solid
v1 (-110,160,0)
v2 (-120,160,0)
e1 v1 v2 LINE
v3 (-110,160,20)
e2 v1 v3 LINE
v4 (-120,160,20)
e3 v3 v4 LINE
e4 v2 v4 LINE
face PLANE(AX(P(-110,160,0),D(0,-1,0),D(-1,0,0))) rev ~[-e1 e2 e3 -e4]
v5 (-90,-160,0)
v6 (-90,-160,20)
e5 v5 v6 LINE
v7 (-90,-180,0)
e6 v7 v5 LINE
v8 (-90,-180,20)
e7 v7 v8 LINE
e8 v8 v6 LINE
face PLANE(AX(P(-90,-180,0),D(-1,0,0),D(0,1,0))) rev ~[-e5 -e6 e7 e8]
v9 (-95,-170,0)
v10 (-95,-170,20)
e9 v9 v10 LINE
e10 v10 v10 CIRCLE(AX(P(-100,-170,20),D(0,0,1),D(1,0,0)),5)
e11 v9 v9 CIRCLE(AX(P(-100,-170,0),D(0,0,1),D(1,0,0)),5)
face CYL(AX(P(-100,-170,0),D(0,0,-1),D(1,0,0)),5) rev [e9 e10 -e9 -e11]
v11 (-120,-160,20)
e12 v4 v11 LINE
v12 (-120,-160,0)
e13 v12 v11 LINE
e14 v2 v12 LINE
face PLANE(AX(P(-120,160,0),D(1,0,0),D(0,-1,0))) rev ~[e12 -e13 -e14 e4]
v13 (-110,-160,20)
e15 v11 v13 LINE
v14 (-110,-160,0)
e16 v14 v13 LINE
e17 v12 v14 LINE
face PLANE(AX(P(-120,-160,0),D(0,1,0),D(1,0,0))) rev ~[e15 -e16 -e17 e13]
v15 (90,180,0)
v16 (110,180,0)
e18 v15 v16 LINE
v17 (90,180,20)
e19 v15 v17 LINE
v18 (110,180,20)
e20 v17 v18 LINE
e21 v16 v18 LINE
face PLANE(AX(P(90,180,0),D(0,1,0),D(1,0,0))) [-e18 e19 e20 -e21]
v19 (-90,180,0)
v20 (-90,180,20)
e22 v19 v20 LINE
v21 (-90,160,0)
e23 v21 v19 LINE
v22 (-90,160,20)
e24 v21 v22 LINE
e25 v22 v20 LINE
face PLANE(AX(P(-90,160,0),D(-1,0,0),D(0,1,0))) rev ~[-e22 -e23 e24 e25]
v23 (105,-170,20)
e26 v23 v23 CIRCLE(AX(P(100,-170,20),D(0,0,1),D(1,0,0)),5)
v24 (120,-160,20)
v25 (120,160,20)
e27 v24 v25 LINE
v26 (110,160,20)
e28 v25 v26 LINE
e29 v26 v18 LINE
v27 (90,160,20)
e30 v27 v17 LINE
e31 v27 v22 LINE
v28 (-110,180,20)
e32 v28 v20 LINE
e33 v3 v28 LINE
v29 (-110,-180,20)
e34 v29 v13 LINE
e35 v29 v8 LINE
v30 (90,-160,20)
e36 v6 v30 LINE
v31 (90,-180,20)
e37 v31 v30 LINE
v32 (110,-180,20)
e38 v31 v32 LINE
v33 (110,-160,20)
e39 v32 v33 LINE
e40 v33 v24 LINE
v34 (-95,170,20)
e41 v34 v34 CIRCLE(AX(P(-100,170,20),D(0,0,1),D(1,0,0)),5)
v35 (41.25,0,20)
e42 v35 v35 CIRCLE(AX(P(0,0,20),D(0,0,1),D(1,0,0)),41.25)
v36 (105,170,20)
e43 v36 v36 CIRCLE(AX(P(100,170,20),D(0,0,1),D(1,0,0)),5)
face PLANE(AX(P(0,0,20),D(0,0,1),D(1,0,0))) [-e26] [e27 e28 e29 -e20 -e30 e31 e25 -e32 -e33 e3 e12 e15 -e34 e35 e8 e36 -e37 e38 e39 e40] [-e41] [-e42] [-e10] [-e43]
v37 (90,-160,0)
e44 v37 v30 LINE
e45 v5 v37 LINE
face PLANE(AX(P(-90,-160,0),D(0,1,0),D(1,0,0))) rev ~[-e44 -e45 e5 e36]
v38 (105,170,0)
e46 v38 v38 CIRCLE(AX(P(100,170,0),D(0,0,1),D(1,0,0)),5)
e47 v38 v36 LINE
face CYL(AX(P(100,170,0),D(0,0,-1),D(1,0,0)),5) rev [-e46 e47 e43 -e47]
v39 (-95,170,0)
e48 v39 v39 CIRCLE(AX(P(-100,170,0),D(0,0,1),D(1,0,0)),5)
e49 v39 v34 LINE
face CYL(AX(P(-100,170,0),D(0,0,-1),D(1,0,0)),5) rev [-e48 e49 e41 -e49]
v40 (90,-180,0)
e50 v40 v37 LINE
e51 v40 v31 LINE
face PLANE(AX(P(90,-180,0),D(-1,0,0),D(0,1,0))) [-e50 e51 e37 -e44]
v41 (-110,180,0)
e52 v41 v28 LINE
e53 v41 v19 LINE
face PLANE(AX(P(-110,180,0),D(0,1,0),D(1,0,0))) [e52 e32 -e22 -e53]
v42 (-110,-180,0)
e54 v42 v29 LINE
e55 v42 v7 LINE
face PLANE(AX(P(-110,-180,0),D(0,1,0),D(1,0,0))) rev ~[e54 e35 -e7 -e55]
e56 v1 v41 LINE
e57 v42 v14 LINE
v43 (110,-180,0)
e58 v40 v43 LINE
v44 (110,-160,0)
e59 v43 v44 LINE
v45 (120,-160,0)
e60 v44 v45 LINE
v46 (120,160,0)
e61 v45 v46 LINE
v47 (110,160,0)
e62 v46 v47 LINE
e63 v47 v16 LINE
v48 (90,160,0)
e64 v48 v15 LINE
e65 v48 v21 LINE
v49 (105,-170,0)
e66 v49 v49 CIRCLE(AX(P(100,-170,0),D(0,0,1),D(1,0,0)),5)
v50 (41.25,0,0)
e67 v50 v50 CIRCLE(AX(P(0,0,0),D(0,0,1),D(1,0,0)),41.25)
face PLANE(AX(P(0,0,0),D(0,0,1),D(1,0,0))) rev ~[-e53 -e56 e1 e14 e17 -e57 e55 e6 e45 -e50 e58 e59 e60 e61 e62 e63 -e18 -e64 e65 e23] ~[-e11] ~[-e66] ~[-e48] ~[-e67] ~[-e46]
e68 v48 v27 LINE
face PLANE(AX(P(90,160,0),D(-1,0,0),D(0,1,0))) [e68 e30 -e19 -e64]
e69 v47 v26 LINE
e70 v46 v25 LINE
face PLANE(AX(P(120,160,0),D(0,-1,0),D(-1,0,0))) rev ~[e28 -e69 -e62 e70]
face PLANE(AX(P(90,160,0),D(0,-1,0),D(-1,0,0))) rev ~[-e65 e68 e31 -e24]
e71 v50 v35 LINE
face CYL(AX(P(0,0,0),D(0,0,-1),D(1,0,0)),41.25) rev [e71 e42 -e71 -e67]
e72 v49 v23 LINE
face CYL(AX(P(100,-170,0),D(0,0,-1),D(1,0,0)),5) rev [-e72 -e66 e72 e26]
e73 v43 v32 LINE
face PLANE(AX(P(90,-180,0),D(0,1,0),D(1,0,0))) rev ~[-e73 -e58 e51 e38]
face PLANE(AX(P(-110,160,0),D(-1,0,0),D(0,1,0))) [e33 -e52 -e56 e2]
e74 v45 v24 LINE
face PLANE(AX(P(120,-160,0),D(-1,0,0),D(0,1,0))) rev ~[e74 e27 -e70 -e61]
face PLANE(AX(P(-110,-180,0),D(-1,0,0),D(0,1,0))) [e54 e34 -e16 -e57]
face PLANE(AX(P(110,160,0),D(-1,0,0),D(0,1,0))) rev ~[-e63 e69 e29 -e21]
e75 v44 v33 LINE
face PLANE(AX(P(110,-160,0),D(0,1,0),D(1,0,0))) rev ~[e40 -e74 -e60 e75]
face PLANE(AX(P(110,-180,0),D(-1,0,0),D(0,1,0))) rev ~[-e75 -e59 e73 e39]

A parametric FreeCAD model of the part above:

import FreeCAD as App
import Part
import Sketcher


def add_polygon(sketch, points):
    """Adds a closed chain of lines whose ends are joined by coincident constraints."""
    first, n = sketch.GeometryCount, len(points)
    for a, b in zip(points, points[1:] + points[:1]):
        sketch.addGeometry(Part.LineSegment(App.Vector(*a, 0), App.Vector(*b, 0)), False)
    for i in range(n):
        sketch.addConstraint(Sketcher.Constraint("Coincident", first + i, 2, first + (i + 1) % n, 1))

doc = App.newDocument("Part")
body = doc.addObject("PartDesign::Body", "Body")

# Sketch on XY plane
sketch1 = body.newObject("Sketcher::SketchObject", "Sketch")
sketch1.AttachmentSupport = (doc.getObject("XY_Plane"), [""])
sketch1.MapMode = "FlatFace"
add_polygon(sketch1, [(120, -160), (120, 160), (110, 160), (110, 180), (90, 180), (90, 160), (-90, 160), (-90, 180), (-110, 180), (-110, 160), (-120, 160), (-120, -160), (-110, -160), (-110, -180), (-90, -180), (-90, -160), (90, -160), (90, -180), (110, -180), (110, -160)])  # lines 0-19
sketch1.addGeometry(Part.Circle(App.Vector(-100, -170, 0), App.Vector(0, 0, 1), 5), False)  # 20
sketch1.addGeometry(Part.Circle(App.Vector(100, -170, 0), App.Vector(0, 0, 1), 5), False)  # 21
sketch1.addGeometry(Part.Circle(App.Vector(-100, 170, 0), App.Vector(0, 0, 1), 5), False)  # 22
sketch1.addGeometry(Part.Circle(App.Vector(0, 0, 0), App.Vector(0, 0, 1), 41), False)  # 23
sketch1.addGeometry(Part.Circle(App.Vector(100, 170, 0), App.Vector(0, 0, 1), 5), False)  # 24
sketch1.addConstraint(Sketcher.Constraint("Vertical", 0))
sketch1.addConstraint(Sketcher.Constraint("Horizontal", 1))
sketch1.addConstraint(Sketcher.Constraint("Vertical", 2))
sketch1.addConstraint(Sketcher.Constraint("Horizontal", 3))
sketch1.addConstraint(Sketcher.Constraint("Vertical", 4))
sketch1.addConstraint(Sketcher.Constraint("Horizontal", 5))
sketch1.addConstraint(Sketcher.Constraint("Vertical", 6))
sketch1.addConstraint(Sketcher.Constraint("Horizontal", 7))
sketch1.addConstraint(Sketcher.Constraint("Vertical", 8))
sketch1.addConstraint(Sketcher.Constraint("Horizontal", 9))
sketch1.addConstraint(Sketcher.Constraint("Vertical", 10))
sketch1.addConstraint(Sketcher.Constraint("Horizontal", 11))
sketch1.addConstraint(Sketcher.Constraint("Vertical", 12))
sketch1.addConstraint(Sketcher.Constraint("Horizontal", 13))
sketch1.addConstraint(Sketcher.Constraint("Vertical", 14))
sketch1.addConstraint(Sketcher.Constraint("Horizontal", 15))
sketch1.addConstraint(Sketcher.Constraint("Vertical", 16))
sketch1.addConstraint(Sketcher.Constraint("Horizontal", 17))
sketch1.addConstraint(Sketcher.Constraint("Vertical", 18))
sketch1.addConstraint(Sketcher.Constraint("Horizontal", 19))
sketch1.addConstraint(Sketcher.Constraint("Coincident", 23, 3, -1, 1))
sketch1.addConstraint(Sketcher.Constraint("Equal", 20, 21))
sketch1.addConstraint(Sketcher.Constraint("Equal", 21, 22))
sketch1.addConstraint(Sketcher.Constraint("Equal", 22, 24))
sketch1.addConstraint(Sketcher.Constraint("Symmetric", 21, 3, 22, 3, -1, 1))
sketch1.addConstraint(Sketcher.Constraint("Symmetric", 20, 3, 24, 3, -1, 1))
sketch1.addConstraint(Sketcher.Constraint("Symmetric", 0, 2, 10, 2, -1, 1))
sketch1.addConstraint(Sketcher.Constraint("Symmetric", 2, 2, 12, 2, -1, 1))
sketch1.addConstraint(Sketcher.Constraint("Symmetric", 4, 2, 14, 2, -1, 1))
sketch1.addConstraint(Sketcher.Constraint("Symmetric", 6, 2, 16, 2, -1, 1))
sketch1.addConstraint(Sketcher.Constraint("Symmetric", 8, 2, 18, 2, -1, 1))
sketch1.addConstraint(Sketcher.Constraint("Symmetric", 20, 3, 21, 3, -2))
sketch1.addConstraint(Sketcher.Constraint("Symmetric", 3, 2, 6, 2, -2))
sketch1.addConstraint(Sketcher.Constraint("Symmetric", 1, 2, 8, 2, -2))
sketch1.addConstraint(Sketcher.Constraint("Horizontal", 1, 2, 4, 2))
sketch1.addConstraint(Sketcher.Constraint("Equal", 17, 2))
sketch1.addConstraint(Sketcher.Constraint("Diameter", 20, 10.0))
sketch1.addConstraint(Sketcher.Constraint("Diameter", 23, 82.5))
sketch1.addConstraint(Sketcher.Constraint("DistanceX", 1, 2, 1, 1, 10.0))
sketch1.addConstraint(Sketcher.Constraint("DistanceX", 3, 2, 3, 1, 20.0))
sketch1.addConstraint(Sketcher.Constraint("DistanceX", 5, 2, 5, 1, 180.0))
sketch1.addConstraint(Sketcher.Constraint("DistanceY", 0, 1, 0, 2, 320.0))
sketch1.addConstraint(Sketcher.Constraint("DistanceX", 20, 3, -1, 1, 100.0))
sketch1.addConstraint(Sketcher.Constraint("DistanceY", 20, 3, -1, 1, 170.0))
pad1 = body.newObject("PartDesign::Pad", "Pad")
pad1.Profile = sketch1
pad1.Length = 20

doc.recompute()
